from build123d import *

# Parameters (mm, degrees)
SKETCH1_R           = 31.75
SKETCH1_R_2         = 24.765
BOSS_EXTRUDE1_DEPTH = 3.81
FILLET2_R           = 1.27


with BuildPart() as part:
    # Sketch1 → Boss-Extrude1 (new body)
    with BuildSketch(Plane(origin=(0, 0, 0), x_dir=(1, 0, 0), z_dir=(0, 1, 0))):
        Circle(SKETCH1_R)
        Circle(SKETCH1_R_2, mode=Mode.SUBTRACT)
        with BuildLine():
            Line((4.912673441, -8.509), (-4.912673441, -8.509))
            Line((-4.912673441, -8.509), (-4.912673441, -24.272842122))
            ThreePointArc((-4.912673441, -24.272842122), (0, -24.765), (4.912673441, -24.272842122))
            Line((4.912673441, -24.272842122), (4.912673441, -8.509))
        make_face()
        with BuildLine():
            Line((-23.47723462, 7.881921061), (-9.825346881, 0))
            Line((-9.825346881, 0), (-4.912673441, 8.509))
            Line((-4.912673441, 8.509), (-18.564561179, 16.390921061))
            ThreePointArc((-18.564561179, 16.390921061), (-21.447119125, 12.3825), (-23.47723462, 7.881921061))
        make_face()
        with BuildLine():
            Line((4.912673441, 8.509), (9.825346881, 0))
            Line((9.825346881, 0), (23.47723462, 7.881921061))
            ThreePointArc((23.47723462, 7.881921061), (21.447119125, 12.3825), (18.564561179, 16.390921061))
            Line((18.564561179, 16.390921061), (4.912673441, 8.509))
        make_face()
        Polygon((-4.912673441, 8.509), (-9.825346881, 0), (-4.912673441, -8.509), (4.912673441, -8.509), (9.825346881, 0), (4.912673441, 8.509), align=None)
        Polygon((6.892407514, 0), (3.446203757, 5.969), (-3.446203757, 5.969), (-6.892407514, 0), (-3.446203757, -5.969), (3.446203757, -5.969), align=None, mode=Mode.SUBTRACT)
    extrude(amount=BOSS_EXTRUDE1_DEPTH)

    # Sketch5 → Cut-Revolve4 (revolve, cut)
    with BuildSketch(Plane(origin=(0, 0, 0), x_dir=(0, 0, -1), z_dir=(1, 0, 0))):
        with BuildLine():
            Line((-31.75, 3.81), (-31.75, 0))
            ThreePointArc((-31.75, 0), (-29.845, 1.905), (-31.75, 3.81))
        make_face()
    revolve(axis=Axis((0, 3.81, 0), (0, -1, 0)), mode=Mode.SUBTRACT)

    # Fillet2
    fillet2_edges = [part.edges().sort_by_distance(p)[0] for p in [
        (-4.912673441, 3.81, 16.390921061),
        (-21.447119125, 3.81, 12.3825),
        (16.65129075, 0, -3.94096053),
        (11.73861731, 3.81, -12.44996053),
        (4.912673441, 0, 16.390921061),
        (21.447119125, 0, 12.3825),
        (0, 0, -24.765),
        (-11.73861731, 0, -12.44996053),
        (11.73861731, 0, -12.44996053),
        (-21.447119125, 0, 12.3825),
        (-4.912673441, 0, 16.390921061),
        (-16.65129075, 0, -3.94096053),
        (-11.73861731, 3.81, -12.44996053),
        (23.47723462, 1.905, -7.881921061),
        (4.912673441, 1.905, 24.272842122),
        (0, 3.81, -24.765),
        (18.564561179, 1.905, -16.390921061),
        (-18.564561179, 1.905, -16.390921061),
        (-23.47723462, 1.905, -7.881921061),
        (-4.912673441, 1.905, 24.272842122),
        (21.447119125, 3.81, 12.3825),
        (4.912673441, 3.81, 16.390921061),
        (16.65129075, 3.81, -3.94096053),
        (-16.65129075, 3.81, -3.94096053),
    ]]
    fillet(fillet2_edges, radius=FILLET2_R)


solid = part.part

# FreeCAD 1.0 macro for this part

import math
import FreeCAD as App
import Part
import Sketcher
Q = App.Units.Quantity


def edges_at(feature, points):
    """Names of the edges that pass closest to the given points."""
    edges = feature.Shape.Edges
    near = lambda p: min(range(len(edges)), key=lambda i: edges[i].distToShape(Part.Vertex(*p))[0])
    return sorted({f"Edge{near(p) + 1}" for p in points})

doc = App.newDocument("Part")
body = doc.addObject("PartDesign::Body", "Body")

# Sketch on XZ plane
sketch1 = body.newObject("Sketcher::SketchObject", "Sketch")
sketch1.AttachmentSupport = (doc.getObject("XZ_Plane"), [""])
sketch1.MapMode = "FlatFace"
sketch1.addGeometry(Part.Circle(App.Vector(0, 0, 0), App.Vector(0, 0, 1), 32), False)
sketch1.addGeometry(Part.ArcOfCircle(Part.Circle(App.Vector(0, 0, 0), App.Vector(0, 0, 1), 25), math.radians(101), math.radians(199)), False)
sketch1.addGeometry(Part.LineSegment(App.Vector(-23, -8, 0), App.Vector(-10, 0, 0)), False)
sketch1.addGeometry(Part.LineSegment(App.Vector(-10, 0, 0), App.Vector(-5, 9, 0)), False)
sketch1.addGeometry(Part.LineSegment(App.Vector(-5, 9, 0), App.Vector(-5, 24, 0)), False)
sketch1.addGeometry(Part.LineSegment(App.Vector(3, -6, 0), App.Vector(7, 0, 0)), False)
sketch1.addGeometry(Part.LineSegment(App.Vector(7, 0, 0), App.Vector(3, 6, 0)), False)
sketch1.addGeometry(Part.LineSegment(App.Vector(3, 6, 0), App.Vector(-3, 6, 0)), False)
sketch1.addGeometry(Part.LineSegment(App.Vector(-3, 6, 0), App.Vector(-7, 0, 0)), False)
sketch1.addGeometry(Part.LineSegment(App.Vector(-7, 0, 0), App.Vector(-3, -6, 0)), False)
sketch1.addGeometry(Part.LineSegment(App.Vector(-3, -6, 0), App.Vector(3, -6, 0)), False)
sketch1.addGeometry(Part.LineSegment(App.Vector(10, 0, 0), App.Vector(23, -8, 0)), False)
sketch1.addGeometry(Part.ArcOfCircle(Part.Circle(App.Vector(0, 0, 0), App.Vector(0, 0, 1), 25), math.radians(-19), math.radians(79)), False)
sketch1.addGeometry(Part.LineSegment(App.Vector(5, 24, 0), App.Vector(5, 9, 0)), False)
sketch1.addGeometry(Part.LineSegment(App.Vector(5, 9, 0), App.Vector(10, 0, 0)), False)
sketch1.addGeometry(Part.LineSegment(App.Vector(-5, -9, 0), App.Vector(-19, -16, 0)), False)
sketch1.addGeometry(Part.ArcOfCircle(Part.Circle(App.Vector(0, 0, 0), App.Vector(0, 0, 1), 25), math.radians(-139), math.radians(-41)), False)
sketch1.addGeometry(Part.LineSegment(App.Vector(19, -16, 0), App.Vector(5, -9, 0)), False)
sketch1.addGeometry(Part.LineSegment(App.Vector(5, -9, 0), App.Vector(-5, -9, 0)), False)
sketch1.addConstraint(Sketcher.Constraint("Coincident", 1, 2, 2, 1))
sketch1.addConstraint(Sketcher.Constraint("Coincident", 2, 2, 3, 1))
sketch1.addConstraint(Sketcher.Constraint("Coincident", 3, 2, 4, 1))
sketch1.addConstraint(Sketcher.Constraint("Coincident", 4, 2, 1, 1))
sketch1.addConstraint(Sketcher.Constraint("Coincident", 5, 2, 6, 1))
sketch1.addConstraint(Sketcher.Constraint("Coincident", 6, 2, 7, 1))
sketch1.addConstraint(Sketcher.Constraint("Coincident", 7, 2, 8, 1))
sketch1.addConstraint(Sketcher.Constraint("Coincident", 8, 2, 9, 1))
sketch1.addConstraint(Sketcher.Constraint("Coincident", 9, 2, 10, 1))
sketch1.addConstraint(Sketcher.Constraint("Coincident", 10, 2, 5, 1))
sketch1.addConstraint(Sketcher.Constraint("Coincident", 11, 2, 12, 1))
sketch1.addConstraint(Sketcher.Constraint("Coincident", 12, 2, 13, 1))
sketch1.addConstraint(Sketcher.Constraint("Coincident", 13, 2, 14, 1))
sketch1.addConstraint(Sketcher.Constraint("Coincident", 14, 2, 11, 1))
sketch1.addConstraint(Sketcher.Constraint("Coincident", 15, 2, 16, 1))
sketch1.addConstraint(Sketcher.Constraint("Coincident", 16, 2, 17, 1))
sketch1.addConstraint(Sketcher.Constraint("Coincident", 17, 2, 18, 1))
sketch1.addConstraint(Sketcher.Constraint("Coincident", 18, 2, 15, 1))
sketch1.addConstraint(Sketcher.Constraint("Vertical", 4))
sketch1.addConstraint(Sketcher.Constraint("Horizontal", 7))
sketch1.addConstraint(Sketcher.Constraint("Horizontal", 10))
sketch1.addConstraint(Sketcher.Constraint("Vertical", 13))
sketch1.addConstraint(Sketcher.Constraint("Horizontal", 18))
sketch1.addConstraint(Sketcher.Constraint("Coincident", 0, 3, -1, 1))
sketch1.addConstraint(Sketcher.Constraint("Coincident", 1, 3, -1, 1))
sketch1.addConstraint(Sketcher.Constraint("Coincident", 12, 3, -1, 1))
sketch1.addConstraint(Sketcher.Constraint("Coincident", 16, 3, -1, 1))
sketch1.addConstraint(Sketcher.Constraint("Equal", 1, 12))
sketch1.addConstraint(Sketcher.Constraint("Equal", 12, 16))
sketch1.addConstraint(Sketcher.Constraint("Symmetric", 5, 2, 8, 2, -1, 1))
sketch1.addConstraint(Sketcher.Constraint("Symmetric", 6, 2, 9, 2, -1, 1))
sketch1.addConstraint(Sketcher.Constraint("Symmetric", 2, 2, 14, 2, -1, 1))
sketch1.addConstraint(Sketcher.Constraint("Symmetric", 3, 2, 17, 2, -1, 1))
sketch1.addConstraint(Sketcher.Constraint("Symmetric", 13, 2, 18, 2, -1, 1))
sketch1.addConstraint(Sketcher.Constraint("PointOnObject", 2, 2, -1))
sketch1.addConstraint(Sketcher.Constraint("PointOnObject", 5, 2, -1))
sketch1.addConstraint(Sketcher.Constraint("Parallel", 3, 5))
sketch1.addConstraint(Sketcher.Constraint("Perpendicular", 2, 6))
sketch1.addConstraint(Sketcher.Constraint("Parallel", 5, 8))
sketch1.addConstraint(Sketcher.Constraint("Perpendicular", 8, 11))
sketch1.addConstraint(Sketcher.Constraint("Parallel", 9, 14))
sketch1.addConstraint(Sketcher.Constraint("Perpendicular", 14, 15))
sketch1.addConstraint(Sketcher.Constraint("Parallel", 11, 17))
sketch1.addConstraint(Sketcher.Constraint("Horizontal", 1, 2, 11, 2))
sketch1.addConstraint(Sketcher.Constraint("Equal", 11, 15))
sketch1.addConstraint(Sketcher.Constraint("Diameter", 0, Q("2.5 in")))
sketch1.addConstraint(Sketcher.Constraint("Angle", 2, Q("30 deg")))
sketch1.addConstraint(Sketcher.Constraint("Radius", 1, Q("0.975 in")))
sketch1.addConstraint(Sketcher.Constraint("DistanceY", 7, 2, 3, 2, Q("0.1 in")))
sketch1.addConstraint(Sketcher.Constraint("DistanceY", -1, 1, 3, 2, Q("0.335 in")))
sketch1.addConstraint(Sketcher.Constraint("DistanceX", 7, 2, 7, 1, 6.892408))
pad1 = body.newObject("PartDesign::Pad", "Pad")
pad1.Profile = sketch1
pad1.Length = Q("0.15 in")
pad1.Reversed = True

# Sketch on YZ plane
sketch2 = body.newObject("Sketcher::SketchObject", "Sketch001")
sketch2.AttachmentSupport = (doc.getObject("YZ_Plane"), [""])
sketch2.MapMode = "FlatFace"
sketch2.addGeometry(Part.LineSegment(App.Vector(3.8, 31.8, 0), App.Vector(0, 31.8, 0)), False)
sketch2.addGeometry(Part.ArcOfCircle(Part.Circle(App.Vector(1.9, 31.8, 0), App.Vector(0, 0, 1), 1.9), math.radians(180), math.radians(360)), False)
sketch2.addConstraint(Sketcher.Constraint("Coincident", 0, 1, 1, 2))
sketch2.addConstraint(Sketcher.Constraint("Coincident", 1, 1, 0, 2))
sketch2.addConstraint(Sketcher.Constraint("Horizontal", 0))
sketch2.addConstraint(Sketcher.Constraint("PointOnObject", 1, 1, -2))
sketch2.addConstraint(Sketcher.Constraint("Horizontal", 1, 3, 0, 1))
sketch2.addConstraint(Sketcher.Constraint("Radius", 1, Q("0.075 in")))
sketch2.addConstraint(Sketcher.Constraint("DistanceY", -1, 1, 1, 3, Q("1.25 in")))
groove = body.newObject("PartDesign::Groove", "Groove")
groove.Profile = sketch2
groove.ReferenceAxis = (sketch2, ["H_Axis"])
groove.Angle = 360
doc.recompute()

fillet = body.newObject("PartDesign::Fillet", "Fillet")
fillet.Base = (groove, edges_at(groove, [
    (-4.913, 3.81, 16.391),
    (-21.447, 3.81, 12.383),
    (16.651, 0, -3.941),
    (11.739, 3.81, -12.45),
    (4.913, 0, 16.391),
    (21.447, 0, 12.383),
    (0, 0, -24.765),
    (-11.739, 0, -12.45),
    (11.739, 0, -12.45),
    (-21.447, 0, 12.383),
    (-4.913, 0, 16.391),
    (-16.651, 0, -3.941),
    (-11.739, 3.81, -12.45),
    (23.477, 1.905, -7.882),
    (4.913, 1.905, 24.273),
    (0, 3.81, -24.765),
    (18.565, 1.905, -16.391),
    (-18.565, 1.905, -16.391),
    (-23.477, 1.905, -7.882),
    (-4.913, 1.905, 24.273),
    (21.447, 3.81, 12.383),
    (4.913, 3.81, 16.391),
    (16.651, 3.81, -3.941),
    (-16.651, 3.81, -3.941),
]))
fillet.Radius = Q("0.05 in")

doc.recompute()
